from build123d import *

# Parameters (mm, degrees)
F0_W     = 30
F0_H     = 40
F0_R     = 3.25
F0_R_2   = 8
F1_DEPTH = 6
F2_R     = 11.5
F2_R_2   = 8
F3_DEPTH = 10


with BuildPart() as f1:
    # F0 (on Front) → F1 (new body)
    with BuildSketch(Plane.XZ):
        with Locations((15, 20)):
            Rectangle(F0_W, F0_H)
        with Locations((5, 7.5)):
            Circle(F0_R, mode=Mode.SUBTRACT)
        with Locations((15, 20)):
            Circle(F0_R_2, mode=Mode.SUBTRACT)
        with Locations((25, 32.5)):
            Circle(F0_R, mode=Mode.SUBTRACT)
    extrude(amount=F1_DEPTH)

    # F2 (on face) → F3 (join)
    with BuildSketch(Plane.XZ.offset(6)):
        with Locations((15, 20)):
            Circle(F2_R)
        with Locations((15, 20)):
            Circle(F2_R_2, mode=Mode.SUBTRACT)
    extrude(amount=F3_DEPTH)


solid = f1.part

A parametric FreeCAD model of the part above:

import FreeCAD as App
import Part
import Sketcher
from FreeCAD import Vector


def add_polygon(sketch, points):
    """Adds a closed chain of lines whose ends are joined by coincident constraints."""
    first, n = sketch.GeometryCount, len(points)
    for a, b in zip(points, points[1:] + points[:1]):
        sketch.addGeometry(Part.LineSegment(App.Vector(*a, 0), App.Vector(*b, 0)), False)
    for i in range(n):
        sketch.addConstraint(Sketcher.Constraint("Coincident", first + i, 2, first + (i + 1) % n, 1))

doc = App.newDocument("Part")
params = doc.addObject("Spreadsheet::Sheet", "Params")
for row, (alias, value) in enumerate([
    ("sketch1_diameter", "16 mm"),
    ("sketch1_diameter2", "6.5 mm"),
    ("sketch1_width", "30 mm"),
    ("sketch1_height", "40 mm"),
    ("pad1_length", "6 mm"),
    ("sketch2_diameter", "23 mm"),
    ("sketch2_diameter2", "16 mm"),
    ("pad2_length", "10 mm"),
], start=1):
    params.set(f"A{row}", alias)
    params.set(f"B{row}", "=" + value)
    params.setAlias(f"B{row}", alias)

body = doc.addObject("PartDesign::Body", "Body")

# Sketch on XZ plane
sketch1 = doc.addObject("Sketcher::SketchObject", "Sketch")
body.addObject(sketch1)
sketch1.AttachmentSupport = (doc.XZ_Plane, [""])
sketch1.MapMode = "FlatFace"
add_polygon(sketch1, [(0, 40), (0, 0), (30, 0), (30, 40)])  # lines 0-3
sketch1.addGeometry(Part.Circle(Vector(5, 7.5, 0), Vector(0, 0, 1), 3.25), False)  # 4
sketch1.addGeometry(Part.Circle(Vector(15, 20, 0), Vector(0, 0, 1), 8), False)  # 5
sketch1.addGeometry(Part.Circle(Vector(25, 32.5, 0), Vector(0, 0, 1), 3.25), False)  # 6
sketch1.addConstraint([
    Sketcher.Constraint("Vertical", 0),
    Sketcher.Constraint("Horizontal", 1),
    Sketcher.Constraint("Vertical", 2),
    Sketcher.Constraint("Horizontal", 3),
    Sketcher.Constraint("Coincident", 0, 2, -1, 1),
    Sketcher.Constraint("Equal", 4, 6),
    Sketcher.Constraint("Diameter", 5, 16.0),
    Sketcher.Constraint("Diameter", 4, 6.5),
    Sketcher.Constraint("DistanceX", 1, 1, 1, 2, 30.0),
    Sketcher.Constraint("DistanceY", 0, 2, 0, 1, 40.0),
    Sketcher.Constraint("DistanceX", -1, 1, 4, 3, 5.0),
    Sketcher.Constraint("DistanceX", -1, 1, 5, 3, 15.0),
    Sketcher.Constraint("DistanceY", -1, 1, 5, 3, 20.0),
    Sketcher.Constraint("DistanceX", -1, 1, 6, 3, 25.0),
    Sketcher.Constraint("DistanceY", 4, 3, 6, 3, 25.0),
    Sketcher.Constraint("DistanceY", -1, 1, 4, 3, 7.5),
])
sketch1.setExpression("Constraints[10]", "Params.sketch1_diameter")
sketch1.setExpression("Constraints[11]", "Params.sketch1_diameter2")
sketch1.setExpression("Constraints[12]", "Params.sketch1_width")
sketch1.setExpression("Constraints[13]", "Params.sketch1_height")
pad1 = doc.addObject("PartDesign::Pad", "Pad")
body.addObject(pad1)
pad1.Profile = sketch1
pad1.setExpression("Length", "Params.pad1_length")

# Sketch on XZ plane
sketch2 = doc.addObject("Sketcher::SketchObject", "Sketch001")
body.addObject(sketch2)
sketch2.AttachmentSupport = (doc.XZ_Plane, [""])
sketch2.MapMode = "FlatFace"
sketch2.AttachmentOffset = App.Placement(Vector(0, 0, 6), App.Rotation())
sketch2.addGeometry([
    Part.Circle(Vector(15, 20, 0), Vector(0, 0, 1), 11.5),
    Part.Circle(Vector(15, 20, 0), Vector(0, 0, 1), 8),
], False)
sketch2.addConstraint([
    Sketcher.Constraint("Coincident", 1, 3, 0, 3),
    Sketcher.Constraint("Diameter", 0, 23.0),
    Sketcher.Constraint("Diameter", 1, 16.0),
    Sketcher.Constraint("DistanceX", -1, 1, 0, 3, 15.0),
    Sketcher.Constraint("DistanceY", -1, 1, 0, 3, 20.0),
])
sketch2.setExpression("Constraints[1]", "Params.sketch2_diameter")
sketch2.setExpression("Constraints[2]", "Params.sketch2_diameter2")
pad2 = doc.addObject("PartDesign::Pad", "Pad001")
body.addObject(pad2)
pad2.Profile = sketch2
pad2.setExpression("Length", "Params.pad2_length")

doc.recompute()
